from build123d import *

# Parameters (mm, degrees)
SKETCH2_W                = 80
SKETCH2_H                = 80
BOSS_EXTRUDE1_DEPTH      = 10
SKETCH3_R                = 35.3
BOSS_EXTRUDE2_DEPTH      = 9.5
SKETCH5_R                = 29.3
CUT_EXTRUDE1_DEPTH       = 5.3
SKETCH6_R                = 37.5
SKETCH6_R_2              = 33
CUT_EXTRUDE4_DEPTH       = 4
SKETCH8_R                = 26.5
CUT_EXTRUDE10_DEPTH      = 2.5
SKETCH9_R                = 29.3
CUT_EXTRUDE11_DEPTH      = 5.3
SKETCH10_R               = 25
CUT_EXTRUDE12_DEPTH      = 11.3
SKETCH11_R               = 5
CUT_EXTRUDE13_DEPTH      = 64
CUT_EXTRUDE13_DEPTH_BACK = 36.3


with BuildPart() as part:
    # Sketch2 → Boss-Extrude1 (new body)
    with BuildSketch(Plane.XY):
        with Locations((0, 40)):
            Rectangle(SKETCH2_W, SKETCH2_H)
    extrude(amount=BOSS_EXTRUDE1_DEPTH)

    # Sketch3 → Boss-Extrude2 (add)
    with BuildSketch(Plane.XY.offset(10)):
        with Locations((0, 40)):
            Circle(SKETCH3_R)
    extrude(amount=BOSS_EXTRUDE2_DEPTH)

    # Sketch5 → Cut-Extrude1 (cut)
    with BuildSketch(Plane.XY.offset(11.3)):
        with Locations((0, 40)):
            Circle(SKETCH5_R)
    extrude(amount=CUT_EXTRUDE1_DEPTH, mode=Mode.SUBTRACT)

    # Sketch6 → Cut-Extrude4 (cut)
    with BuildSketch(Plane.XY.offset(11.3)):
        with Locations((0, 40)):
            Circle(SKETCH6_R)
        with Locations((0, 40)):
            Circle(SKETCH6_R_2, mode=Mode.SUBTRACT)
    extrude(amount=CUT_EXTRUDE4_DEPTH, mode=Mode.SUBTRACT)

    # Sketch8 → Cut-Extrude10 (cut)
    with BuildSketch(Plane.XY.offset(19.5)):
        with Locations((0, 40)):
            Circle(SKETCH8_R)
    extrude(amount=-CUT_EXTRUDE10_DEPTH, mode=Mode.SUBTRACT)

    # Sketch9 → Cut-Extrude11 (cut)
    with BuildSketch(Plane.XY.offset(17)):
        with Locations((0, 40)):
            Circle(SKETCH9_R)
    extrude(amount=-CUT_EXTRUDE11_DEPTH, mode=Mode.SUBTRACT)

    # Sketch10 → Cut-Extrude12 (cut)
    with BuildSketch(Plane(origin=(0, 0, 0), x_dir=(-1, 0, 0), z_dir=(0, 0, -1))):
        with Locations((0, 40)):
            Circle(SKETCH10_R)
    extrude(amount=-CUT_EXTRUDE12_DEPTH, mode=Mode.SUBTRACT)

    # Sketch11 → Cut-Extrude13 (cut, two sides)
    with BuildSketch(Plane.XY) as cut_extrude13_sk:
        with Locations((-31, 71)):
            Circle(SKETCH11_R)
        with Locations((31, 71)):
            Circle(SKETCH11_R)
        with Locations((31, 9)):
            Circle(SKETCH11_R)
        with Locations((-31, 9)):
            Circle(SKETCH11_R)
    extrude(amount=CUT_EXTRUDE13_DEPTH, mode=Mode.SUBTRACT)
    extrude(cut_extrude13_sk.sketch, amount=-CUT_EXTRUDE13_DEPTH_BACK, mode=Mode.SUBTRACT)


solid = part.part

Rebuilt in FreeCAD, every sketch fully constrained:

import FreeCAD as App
import Part
import Sketcher

V = App.Vector


def add_polygon(sketch, points):
    """Adds a closed chain of lines whose ends are joined by coincident constraints."""
    first, n = sketch.GeometryCount, len(points)
    for a, b in zip(points, points[1:] + points[:1]):
        sketch.addGeometry(Part.LineSegment(App.Vector(*a, 0), App.Vector(*b, 0)), False)
    for i in range(n):
        sketch.addConstraint(Sketcher.Constraint("Coincident", first + i, 2, first + (i + 1) % n, 1))

doc = App.newDocument("Part")
body = doc.addObject("PartDesign::Body", "Body")

# Sketch on XY plane
sketch1 = body.newObject("Sketcher::SketchObject", "Sketch")
sketch1.AttachmentSupport = (doc.getObject("XY_Plane"), [""])
sketch1.MapMode = "FlatFace"
add_polygon(sketch1, [(-40, 80), (-40, 0), (40, 0), (40, 80)])  # lines 0-3
sketch1.addConstraint([
    Sketcher.Constraint("Vertical", 0),
    Sketcher.Constraint("Horizontal", 1),
    Sketcher.Constraint("Vertical", 2),
    Sketcher.Constraint("Horizontal", 3),
    Sketcher.Constraint("Symmetric", 0, 2, 1, 2, -1, 1),
    Sketcher.Constraint("Equal", 3, 0),
    Sketcher.Constraint("DistanceX", 1, 1, 1, 2, 80.0),
])
pad1 = body.newObject("PartDesign::Pad", "Pad")
pad1.Profile = sketch1
pad1.Length = 10

# Sketch on XY plane
sketch2 = body.newObject("Sketcher::SketchObject", "Sketch001")
sketch2.AttachmentSupport = (doc.getObject("XY_Plane"), [""])
sketch2.MapMode = "FlatFace"
sketch2.AttachmentOffset = App.Placement(V(0, 0, 10), App.Rotation())
sketch2.addGeometry(Part.Circle(V(0, 40, 0), V(0, 0, 1), 35), False)
sketch2.addConstraint([
    Sketcher.Constraint("PointOnObject", 0, 3, -2),
    Sketcher.Constraint("Diameter", 0, 70.6),
    Sketcher.Constraint("DistanceY", -1, 1, 0, 3, 40.0),
])
pad2 = body.newObject("PartDesign::Pad", "Pad001")
pad2.Profile = sketch2
pad2.Length = 9.5

# Sketch on XY plane
sketch3 = body.newObject("Sketcher::SketchObject", "Sketch002")
sketch3.AttachmentSupport = (doc.getObject("XY_Plane"), [""])
sketch3.MapMode = "FlatFace"
sketch3.AttachmentOffset = App.Placement(V(0, 0, 11.3), App.Rotation())
sketch3.addGeometry(Part.Circle(V(0, 40, 0), V(0, 0, 1), 29), False)
sketch3.addConstraint([
    Sketcher.Constraint("PointOnObject", 0, 3, -2),
    Sketcher.Constraint("Diameter", 0, 58.6),
    Sketcher.Constraint("DistanceY", -1, 1, 0, 3, 40.0),
])
pocket1 = body.newObject("PartDesign::Pocket", "Pocket")
pocket1.Profile = sketch3
pocket1.Length = 5.3
pocket1.Reversed = True

# Sketch on XY plane
sketch4 = body.newObject("Sketcher::SketchObject", "Sketch003")
sketch4.AttachmentSupport = (doc.getObject("XY_Plane"), [""])
sketch4.MapMode = "FlatFace"
sketch4.AttachmentOffset = App.Placement(V(0, 0, 11.3), App.Rotation())
sketch4.addGeometry([
    Part.Circle(V(0, 40, 0), V(0, 0, 1), 38),
    Part.Circle(V(0, 40, 0), V(0, 0, 1), 33),
], False)
sketch4.addConstraint([
    Sketcher.Constraint("Coincident", 1, 3, 0, 3),
    Sketcher.Constraint("PointOnObject", 0, 3, -2),
    Sketcher.Constraint("Diameter", 0, 75.0),
    Sketcher.Constraint("Diameter", 1, 66.0),
    Sketcher.Constraint("DistanceY", -1, 1, 0, 3, 40.0),
])
pocket2 = body.newObject("PartDesign::Pocket", "Pocket001")
pocket2.Profile = sketch4
pocket2.Length = 4
pocket2.Reversed = True

# Sketch on XY plane
sketch5 = body.newObject("Sketcher::SketchObject", "Sketch004")
sketch5.AttachmentSupport = (doc.getObject("XY_Plane"), [""])
sketch5.MapMode = "FlatFace"
sketch5.AttachmentOffset = App.Placement(V(0, 0, 19.5), App.Rotation())
sketch5.addGeometry(Part.Circle(V(0, 40, 0), V(0, 0, 1), 26), False)
sketch5.addConstraint([
    Sketcher.Constraint("PointOnObject", 0, 3, -2),
    Sketcher.Constraint("Diameter", 0, 53.0),
    Sketcher.Constraint("DistanceY", -1, 1, 0, 3, 40.0),
])
pocket3 = body.newObject("PartDesign::Pocket", "Pocket002")
pocket3.Profile = sketch5
pocket3.Length = 2.5

# Sketch on XY plane
sketch6 = body.newObject("Sketcher::SketchObject", "Sketch005")
sketch6.AttachmentSupport = (doc.getObject("XY_Plane"), [""])
sketch6.MapMode = "FlatFace"
sketch6.AttachmentOffset = App.Placement(V(0, 0, 17), App.Rotation())
sketch6.addGeometry(Part.Circle(V(0, 40, 0), V(0, 0, 1), 29), False)
sketch6.addConstraint([
    Sketcher.Constraint("PointOnObject", 0, 3, -2),
    Sketcher.Constraint("Diameter", 0, 58.6),
    Sketcher.Constraint("DistanceY", -1, 1, 0, 3, 40.0),
])
pocket4 = body.newObject("PartDesign::Pocket", "Pocket003")
pocket4.Profile = sketch6
pocket4.Length = 5.3

# Sketch on XY plane
sketch7 = body.newObject("Sketcher::SketchObject", "Sketch006")
sketch7.AttachmentSupport = (doc.getObject("XY_Plane"), [""])
sketch7.MapMode = "FlatFace"
sketch7.addGeometry(Part.Circle(V(0, 40, 0), V(0, 0, 1), 25), False)
sketch7.addConstraint([
    Sketcher.Constraint("PointOnObject", 0, 3, -2),
    Sketcher.Constraint("Diameter", 0, 50.0),
    Sketcher.Constraint("DistanceY", -1, 1, 0, 3, 40.0),
])
pocket5 = body.newObject("PartDesign::Pocket", "Pocket004")
pocket5.Profile = sketch7
pocket5.Length = 11.3
pocket5.Reversed = True

# Sketch on XY plane
sketch8 = body.newObject("Sketcher::SketchObject", "Sketch007")
sketch8.AttachmentSupport = (doc.getObject("XY_Plane"), [""])
sketch8.MapMode = "FlatFace"
sketch8.addGeometry([
    Part.Circle(V(-31, 71, 0), V(0, 0, 1), 5),
    Part.Circle(V(31, 71, 0), V(0, 0, 1), 5),
    Part.Circle(V(31, 9, 0), V(0, 0, 1), 5),
    Part.Circle(V(-31, 9, 0), V(0, 0, 1), 5),
], False)
sketch8.addConstraint([
    Sketcher.Constraint("Equal", 0, 1),
    Sketcher.Constraint("Equal", 1, 2),
    Sketcher.Constraint("Equal", 2, 3),
    Sketcher.Constraint("Symmetric", 0, 3, 1, 3, -2),
    Sketcher.Constraint("Symmetric", 2, 3, 3, 3, -2),
    Sketcher.Constraint("Vertical", 1, 3, 2, 3),
    Sketcher.Constraint("Diameter", 0, 10.0),
    Sketcher.Constraint("DistanceX", 0, 3, -1, 1, 31.0),
    Sketcher.Constraint("DistanceY", -1, 1, 0, 3, 71.0),
    Sketcher.Constraint("DistanceY", -1, 1, 2, 3, 9.0),
])
pocket6 = body.newObject("PartDesign::Pocket", "Pocket005")
pocket6.Profile = sketch8
pocket6.Type = "ThroughAll"
pocket6.Midplane = True

doc.recompute()
